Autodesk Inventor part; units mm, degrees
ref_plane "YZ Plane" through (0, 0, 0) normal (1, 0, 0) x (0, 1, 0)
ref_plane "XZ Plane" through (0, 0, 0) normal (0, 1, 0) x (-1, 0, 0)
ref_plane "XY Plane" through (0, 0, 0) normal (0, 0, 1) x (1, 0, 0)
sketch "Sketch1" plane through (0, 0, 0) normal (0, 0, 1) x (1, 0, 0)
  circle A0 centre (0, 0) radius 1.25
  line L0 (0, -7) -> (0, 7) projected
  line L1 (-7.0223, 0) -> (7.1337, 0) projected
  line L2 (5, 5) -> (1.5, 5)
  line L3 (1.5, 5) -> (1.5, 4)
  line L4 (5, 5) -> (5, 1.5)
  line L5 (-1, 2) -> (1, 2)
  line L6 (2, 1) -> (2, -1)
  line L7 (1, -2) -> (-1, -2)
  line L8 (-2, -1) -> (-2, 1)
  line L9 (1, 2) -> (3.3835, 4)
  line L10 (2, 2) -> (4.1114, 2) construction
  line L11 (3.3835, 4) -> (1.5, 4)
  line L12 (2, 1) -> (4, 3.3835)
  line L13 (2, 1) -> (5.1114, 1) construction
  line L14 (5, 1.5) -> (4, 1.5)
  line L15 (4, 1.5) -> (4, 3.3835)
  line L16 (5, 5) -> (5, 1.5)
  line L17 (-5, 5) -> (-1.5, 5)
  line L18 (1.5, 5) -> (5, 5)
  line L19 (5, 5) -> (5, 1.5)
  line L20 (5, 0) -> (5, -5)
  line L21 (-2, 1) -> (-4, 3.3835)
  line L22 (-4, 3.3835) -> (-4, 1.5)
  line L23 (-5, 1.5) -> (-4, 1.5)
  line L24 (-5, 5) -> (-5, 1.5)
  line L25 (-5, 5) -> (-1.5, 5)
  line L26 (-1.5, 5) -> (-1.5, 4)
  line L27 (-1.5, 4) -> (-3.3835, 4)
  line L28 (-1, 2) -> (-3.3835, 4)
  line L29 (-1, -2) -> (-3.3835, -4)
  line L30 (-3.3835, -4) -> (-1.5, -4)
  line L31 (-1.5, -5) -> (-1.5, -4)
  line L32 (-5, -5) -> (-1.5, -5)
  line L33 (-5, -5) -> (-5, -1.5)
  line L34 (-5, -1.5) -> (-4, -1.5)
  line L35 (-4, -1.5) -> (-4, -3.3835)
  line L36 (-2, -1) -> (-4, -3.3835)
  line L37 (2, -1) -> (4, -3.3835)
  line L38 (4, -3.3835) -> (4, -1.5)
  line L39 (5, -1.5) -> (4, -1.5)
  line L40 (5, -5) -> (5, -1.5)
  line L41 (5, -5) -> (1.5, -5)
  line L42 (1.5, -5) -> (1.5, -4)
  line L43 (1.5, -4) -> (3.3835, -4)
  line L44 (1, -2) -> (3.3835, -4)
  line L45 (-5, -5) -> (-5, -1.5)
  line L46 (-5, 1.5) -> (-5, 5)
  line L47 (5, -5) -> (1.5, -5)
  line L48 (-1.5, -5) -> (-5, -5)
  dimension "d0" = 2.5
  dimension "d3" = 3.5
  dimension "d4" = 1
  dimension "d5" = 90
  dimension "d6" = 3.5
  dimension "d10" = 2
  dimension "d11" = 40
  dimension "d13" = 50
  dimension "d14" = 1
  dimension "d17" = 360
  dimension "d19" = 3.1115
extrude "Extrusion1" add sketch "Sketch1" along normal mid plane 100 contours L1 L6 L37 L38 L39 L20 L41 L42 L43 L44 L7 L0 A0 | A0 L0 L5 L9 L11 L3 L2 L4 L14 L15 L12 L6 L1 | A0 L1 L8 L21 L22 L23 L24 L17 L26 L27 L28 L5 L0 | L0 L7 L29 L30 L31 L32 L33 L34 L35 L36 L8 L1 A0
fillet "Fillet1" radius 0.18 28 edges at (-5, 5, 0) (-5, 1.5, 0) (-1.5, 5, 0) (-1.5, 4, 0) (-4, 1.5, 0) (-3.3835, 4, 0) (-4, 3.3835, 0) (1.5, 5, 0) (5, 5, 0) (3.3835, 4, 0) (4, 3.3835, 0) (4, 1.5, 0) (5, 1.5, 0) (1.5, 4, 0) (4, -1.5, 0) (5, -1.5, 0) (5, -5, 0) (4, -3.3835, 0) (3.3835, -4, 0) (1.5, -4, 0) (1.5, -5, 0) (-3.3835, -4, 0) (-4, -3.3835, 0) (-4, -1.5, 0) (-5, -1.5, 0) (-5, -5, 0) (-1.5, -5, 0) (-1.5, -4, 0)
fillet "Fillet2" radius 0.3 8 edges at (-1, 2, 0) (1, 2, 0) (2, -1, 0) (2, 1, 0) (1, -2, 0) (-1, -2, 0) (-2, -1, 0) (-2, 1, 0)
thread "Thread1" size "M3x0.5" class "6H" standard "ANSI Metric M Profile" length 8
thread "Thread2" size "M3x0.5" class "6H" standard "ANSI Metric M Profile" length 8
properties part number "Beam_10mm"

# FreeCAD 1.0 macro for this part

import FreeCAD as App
import Part
import Sketcher

V = App.Vector
Q = App.Units.Quantity


def edges_at(feature, points):
    """Names of the edges that pass closest to the given points."""
    edges = feature.Shape.Edges
    near = lambda p: min(range(len(edges)), key=lambda i: edges[i].distToShape(Part.Vertex(*p))[0])
    return sorted({f"Edge{near(p) + 1}" for p in points})

doc = App.newDocument("Part")
body = doc.addObject("PartDesign::Body", "Body")

sketch1 = body.newObject("Sketcher::SketchObject", "Sketch")
sketch1.AttachmentSupport = (doc.getObject("XY_Plane"), [""])
sketch1.MapMode = "FlatFace"
sketch1.addGeometry([
    Part.LineSegment(V(2, -1, 0), V(2, 1, 0)),
    Part.LineSegment(V(2, 1, 0), V(4, 3.4, 0)),
    Part.LineSegment(V(4, 3.4, 0), V(4, 1.5, 0)),
    Part.LineSegment(V(4, 1.5, 0), V(5, 1.5, 0)),
    Part.LineSegment(V(5, 1.5, 0), V(5, 5, 0)),
    Part.LineSegment(V(5, 5, 0), V(1.5, 5, 0)),
    Part.LineSegment(V(1.5, 5, 0), V(1.5, 4, 0)),
    Part.LineSegment(V(1.5, 4, 0), V(3.4, 4, 0)),
    Part.LineSegment(V(3.4, 4, 0), V(1, 2, 0)),
    Part.LineSegment(V(1, 2, 0), V(-1, 2, 0)),
    Part.LineSegment(V(-1, 2, 0), V(-3.4, 4, 0)),
    Part.LineSegment(V(-3.4, 4, 0), V(-1.5, 4, 0)),
    Part.LineSegment(V(-1.5, 4, 0), V(-1.5, 5, 0)),
    Part.LineSegment(V(-1.5, 5, 0), V(-5, 5, 0)),
    Part.LineSegment(V(-5, 5, 0), V(-5, 1.5, 0)),
    Part.LineSegment(V(-5, 1.5, 0), V(-4, 1.5, 0)),
    Part.LineSegment(V(-4, 1.5, 0), V(-4, 3.4, 0)),
    Part.LineSegment(V(-4, 3.4, 0), V(-2, 1, 0)),
    Part.LineSegment(V(-2, 1, 0), V(-2, -1, 0)),
    Part.LineSegment(V(-2, -1, 0), V(-4, -3.4, 0)),
    Part.LineSegment(V(-4, -3.4, 0), V(-4, -1.5, 0)),
    Part.LineSegment(V(-4, -1.5, 0), V(-5, -1.5, 0)),
    Part.LineSegment(V(-5, -1.5, 0), V(-5, -5, 0)),
    Part.LineSegment(V(-5, -5, 0), V(-1.5, -5, 0)),
    Part.LineSegment(V(-1.5, -5, 0), V(-1.5, -4, 0)),
    Part.LineSegment(V(-1.5, -4, 0), V(-3.4, -4, 0)),
    Part.LineSegment(V(-3.4, -4, 0), V(-1, -2, 0)),
    Part.LineSegment(V(-1, -2, 0), V(1, -2, 0)),
    Part.LineSegment(V(1, -2, 0), V(3.4, -4, 0)),
    Part.LineSegment(V(3.4, -4, 0), V(1.5, -4, 0)),
    Part.LineSegment(V(1.5, -4, 0), V(1.5, -5, 0)),
    Part.LineSegment(V(1.5, -5, 0), V(5, -5, 0)),
    Part.LineSegment(V(5, -5, 0), V(5, -1.5, 0)),
    Part.LineSegment(V(5, -1.5, 0), V(4, -1.5, 0)),
    Part.LineSegment(V(4, -1.5, 0), V(4, -3.4, 0)),
    Part.LineSegment(V(4, -3.4, 0), V(2, -1, 0)),
    Part.Circle(V(0, 0, 0), V(0, 0, 1), 1.2),
], False)
sketch1.addConstraint([
    Sketcher.Constraint("Coincident", 0, 2, 1, 1),
    Sketcher.Constraint("Coincident", 1, 2, 2, 1),
    Sketcher.Constraint("Coincident", 2, 2, 3, 1),
    Sketcher.Constraint("Coincident", 3, 2, 4, 1),
    Sketcher.Constraint("Coincident", 4, 2, 5, 1),
    Sketcher.Constraint("Coincident", 5, 2, 6, 1),
    Sketcher.Constraint("Coincident", 6, 2, 7, 1),
    Sketcher.Constraint("Coincident", 7, 2, 8, 1),
    Sketcher.Constraint("Coincident", 8, 2, 9, 1),
    Sketcher.Constraint("Coincident", 9, 2, 10, 1),
    Sketcher.Constraint("Coincident", 10, 2, 11, 1),
    Sketcher.Constraint("Coincident", 11, 2, 12, 1),
    Sketcher.Constraint("Coincident", 12, 2, 13, 1),
    Sketcher.Constraint("Coincident", 13, 2, 14, 1),
    Sketcher.Constraint("Coincident", 14, 2, 15, 1),
    Sketcher.Constraint("Coincident", 15, 2, 16, 1),
    Sketcher.Constraint("Coincident", 16, 2, 17, 1),
    Sketcher.Constraint("Coincident", 17, 2, 18, 1),
    Sketcher.Constraint("Coincident", 18, 2, 19, 1),
    Sketcher.Constraint("Coincident", 19, 2, 20, 1),
    Sketcher.Constraint("Coincident", 20, 2, 21, 1),
    Sketcher.Constraint("Coincident", 21, 2, 22, 1),
    Sketcher.Constraint("Coincident", 22, 2, 23, 1),
    Sketcher.Constraint("Coincident", 23, 2, 24, 1),
    Sketcher.Constraint("Coincident", 24, 2, 25, 1),
    Sketcher.Constraint("Coincident", 25, 2, 26, 1),
    Sketcher.Constraint("Coincident", 26, 2, 27, 1),
    Sketcher.Constraint("Coincident", 27, 2, 28, 1),
    Sketcher.Constraint("Coincident", 28, 2, 29, 1),
    Sketcher.Constraint("Coincident", 29, 2, 30, 1),
    Sketcher.Constraint("Coincident", 30, 2, 31, 1),
    Sketcher.Constraint("Coincident", 31, 2, 32, 1),
    Sketcher.Constraint("Coincident", 32, 2, 33, 1),
    Sketcher.Constraint("Coincident", 33, 2, 34, 1),
    Sketcher.Constraint("Coincident", 34, 2, 35, 1),
    Sketcher.Constraint("Coincident", 35, 2, 0, 1),
    Sketcher.Constraint("Vertical", 0),
    Sketcher.Constraint("Vertical", 2),
    Sketcher.Constraint("Horizontal", 3),
    Sketcher.Constraint("Vertical", 4),
    Sketcher.Constraint("Horizontal", 5),
    Sketcher.Constraint("Vertical", 6),
    Sketcher.Constraint("Horizontal", 7),
    Sketcher.Constraint("Horizontal", 9),
    Sketcher.Constraint("Horizontal", 11),
    Sketcher.Constraint("Vertical", 12),
    Sketcher.Constraint("Horizontal", 13),
    Sketcher.Constraint("Vertical", 14),
    Sketcher.Constraint("Horizontal", 15),
    Sketcher.Constraint("Vertical", 16),
    Sketcher.Constraint("Vertical", 18),
    Sketcher.Constraint("Vertical", 20),
    Sketcher.Constraint("Horizontal", 21),
    Sketcher.Constraint("Vertical", 22),
    Sketcher.Constraint("Horizontal", 23),
    Sketcher.Constraint("Vertical", 24),
    Sketcher.Constraint("Horizontal", 25),
    Sketcher.Constraint("Horizontal", 27),
    Sketcher.Constraint("Horizontal", 29),
    Sketcher.Constraint("Vertical", 30),
    Sketcher.Constraint("Horizontal", 31),
    Sketcher.Constraint("Vertical", 32),
    Sketcher.Constraint("Horizontal", 33),
    Sketcher.Constraint("Vertical", 34),
    Sketcher.Constraint("Coincident", 36, 3, -1, 1),
    Sketcher.Constraint("Symmetric", 0, 2, 18, 2, -1, 1),
    Sketcher.Constraint("Symmetric", 1, 2, 19, 2, -1, 1),
    Sketcher.Constraint("Symmetric", 3, 2, 21, 2, -1, 1),
    Sketcher.Constraint("Symmetric", 5, 2, 23, 2, -1, 1),
    Sketcher.Constraint("Symmetric", 7, 2, 25, 2, -1, 1),
    Sketcher.Constraint("Symmetric", 8, 2, 26, 2, -1, 1),
    Sketcher.Constraint("Symmetric", 10, 2, 28, 2, -1, 1),
    Sketcher.Constraint("Symmetric", 12, 2, 30, 2, -1, 1),
    Sketcher.Constraint("Symmetric", 14, 2, 32, 2, -1, 1),
    Sketcher.Constraint("Symmetric", 16, 2, 34, 2, -1, 1),
    Sketcher.Constraint("Symmetric", 7, 2, 10, 2, -2),
    Sketcher.Constraint("Symmetric", 5, 2, 12, 2, -2),
    Sketcher.Constraint("Symmetric", 3, 2, 14, 2, -2),
    Sketcher.Constraint("Symmetric", 1, 2, 16, 2, -2),
    Sketcher.Constraint("Perpendicular", 1, 10),
    Sketcher.Constraint("Perpendicular", 8, 17),
    Sketcher.Constraint("Perpendicular", 19, 28),
    Sketcher.Constraint("Perpendicular", 26, 35),
    Sketcher.Constraint("Horizontal", 0, 2, 17, 2),
    Sketcher.Constraint("Equal", 27, 0),
    Sketcher.Constraint("Equal", 29, 2),
    Sketcher.Constraint("Equal", 31, 4),
    Sketcher.Constraint("Equal", 33, 6),
    Sketcher.Constraint("Equal", 1, 8),
    Sketcher.Constraint("Diameter", 36, 2.5),
    Sketcher.Constraint("DistanceX", 3, 1, 3, 2, 1.0),
    Sketcher.Constraint("DistanceX", 9, 2, 9, 1, 2.0),
    Sketcher.Constraint("Angle", 1, Q("50 deg")),
    Sketcher.Constraint("DistanceX", 5, 2, 5, 1, 3.5),
    Sketcher.Constraint("DistanceX", -1, 1, 0, 2, 2.0),
    Sketcher.Constraint("DistanceX", 0, 2, 1, 2, 2.0),
])
pad1 = body.newObject("PartDesign::Pad", "Pad")
pad1.Profile = sketch1
pad1.Length = 100
pad1.Midplane = True
doc.recompute()

fillet = body.newObject("PartDesign::Fillet", "Fillet")
fillet.Base = (pad1, edges_at(pad1, [
    (-5, 5, 0),
    (-5, 1.5, 0),
    (-1.5, 5, 0),
    (-1.5, 4, 0),
    (-4, 1.5, 0),
    (-3.384, 4, 0),
    (-4, 3.384, 0),
    (1.5, 5, 0),
    (5, 5, 0),
    (3.384, 4, 0),
    (4, 3.384, 0),
    (4, 1.5, 0),
    (5, 1.5, 0),
    (1.5, 4, 0),
    (4, -1.5, 0),
    (5, -1.5, 0),
    (5, -5, 0),
    (4, -3.384, 0),
    (3.384, -4, 0),
    (1.5, -4, 0),
    (1.5, -5, 0),
    (-3.384, -4, 0),
    (-4, -3.384, 0),
    (-4, -1.5, 0),
    (-5, -1.5, 0),
    (-5, -5, 0),
    (-1.5, -5, 0),
    (-1.5, -4, 0),
]))
fillet.Radius = 0.18
doc.recompute()

fillet2 = body.newObject("PartDesign::Fillet", "Fillet001")
fillet2.Base = (fillet, edges_at(fillet, [
    (-1, 2, 0),
    (1, 2, 0),
    (2, -1, 0),
    (2, 1, 0),
    (1, -2, 0),
    (-1, -2, 0),
    (-2, -1, 0),
    (-2, 1, 0),
]))
fillet2.Radius = 0.3

doc.recompute()
